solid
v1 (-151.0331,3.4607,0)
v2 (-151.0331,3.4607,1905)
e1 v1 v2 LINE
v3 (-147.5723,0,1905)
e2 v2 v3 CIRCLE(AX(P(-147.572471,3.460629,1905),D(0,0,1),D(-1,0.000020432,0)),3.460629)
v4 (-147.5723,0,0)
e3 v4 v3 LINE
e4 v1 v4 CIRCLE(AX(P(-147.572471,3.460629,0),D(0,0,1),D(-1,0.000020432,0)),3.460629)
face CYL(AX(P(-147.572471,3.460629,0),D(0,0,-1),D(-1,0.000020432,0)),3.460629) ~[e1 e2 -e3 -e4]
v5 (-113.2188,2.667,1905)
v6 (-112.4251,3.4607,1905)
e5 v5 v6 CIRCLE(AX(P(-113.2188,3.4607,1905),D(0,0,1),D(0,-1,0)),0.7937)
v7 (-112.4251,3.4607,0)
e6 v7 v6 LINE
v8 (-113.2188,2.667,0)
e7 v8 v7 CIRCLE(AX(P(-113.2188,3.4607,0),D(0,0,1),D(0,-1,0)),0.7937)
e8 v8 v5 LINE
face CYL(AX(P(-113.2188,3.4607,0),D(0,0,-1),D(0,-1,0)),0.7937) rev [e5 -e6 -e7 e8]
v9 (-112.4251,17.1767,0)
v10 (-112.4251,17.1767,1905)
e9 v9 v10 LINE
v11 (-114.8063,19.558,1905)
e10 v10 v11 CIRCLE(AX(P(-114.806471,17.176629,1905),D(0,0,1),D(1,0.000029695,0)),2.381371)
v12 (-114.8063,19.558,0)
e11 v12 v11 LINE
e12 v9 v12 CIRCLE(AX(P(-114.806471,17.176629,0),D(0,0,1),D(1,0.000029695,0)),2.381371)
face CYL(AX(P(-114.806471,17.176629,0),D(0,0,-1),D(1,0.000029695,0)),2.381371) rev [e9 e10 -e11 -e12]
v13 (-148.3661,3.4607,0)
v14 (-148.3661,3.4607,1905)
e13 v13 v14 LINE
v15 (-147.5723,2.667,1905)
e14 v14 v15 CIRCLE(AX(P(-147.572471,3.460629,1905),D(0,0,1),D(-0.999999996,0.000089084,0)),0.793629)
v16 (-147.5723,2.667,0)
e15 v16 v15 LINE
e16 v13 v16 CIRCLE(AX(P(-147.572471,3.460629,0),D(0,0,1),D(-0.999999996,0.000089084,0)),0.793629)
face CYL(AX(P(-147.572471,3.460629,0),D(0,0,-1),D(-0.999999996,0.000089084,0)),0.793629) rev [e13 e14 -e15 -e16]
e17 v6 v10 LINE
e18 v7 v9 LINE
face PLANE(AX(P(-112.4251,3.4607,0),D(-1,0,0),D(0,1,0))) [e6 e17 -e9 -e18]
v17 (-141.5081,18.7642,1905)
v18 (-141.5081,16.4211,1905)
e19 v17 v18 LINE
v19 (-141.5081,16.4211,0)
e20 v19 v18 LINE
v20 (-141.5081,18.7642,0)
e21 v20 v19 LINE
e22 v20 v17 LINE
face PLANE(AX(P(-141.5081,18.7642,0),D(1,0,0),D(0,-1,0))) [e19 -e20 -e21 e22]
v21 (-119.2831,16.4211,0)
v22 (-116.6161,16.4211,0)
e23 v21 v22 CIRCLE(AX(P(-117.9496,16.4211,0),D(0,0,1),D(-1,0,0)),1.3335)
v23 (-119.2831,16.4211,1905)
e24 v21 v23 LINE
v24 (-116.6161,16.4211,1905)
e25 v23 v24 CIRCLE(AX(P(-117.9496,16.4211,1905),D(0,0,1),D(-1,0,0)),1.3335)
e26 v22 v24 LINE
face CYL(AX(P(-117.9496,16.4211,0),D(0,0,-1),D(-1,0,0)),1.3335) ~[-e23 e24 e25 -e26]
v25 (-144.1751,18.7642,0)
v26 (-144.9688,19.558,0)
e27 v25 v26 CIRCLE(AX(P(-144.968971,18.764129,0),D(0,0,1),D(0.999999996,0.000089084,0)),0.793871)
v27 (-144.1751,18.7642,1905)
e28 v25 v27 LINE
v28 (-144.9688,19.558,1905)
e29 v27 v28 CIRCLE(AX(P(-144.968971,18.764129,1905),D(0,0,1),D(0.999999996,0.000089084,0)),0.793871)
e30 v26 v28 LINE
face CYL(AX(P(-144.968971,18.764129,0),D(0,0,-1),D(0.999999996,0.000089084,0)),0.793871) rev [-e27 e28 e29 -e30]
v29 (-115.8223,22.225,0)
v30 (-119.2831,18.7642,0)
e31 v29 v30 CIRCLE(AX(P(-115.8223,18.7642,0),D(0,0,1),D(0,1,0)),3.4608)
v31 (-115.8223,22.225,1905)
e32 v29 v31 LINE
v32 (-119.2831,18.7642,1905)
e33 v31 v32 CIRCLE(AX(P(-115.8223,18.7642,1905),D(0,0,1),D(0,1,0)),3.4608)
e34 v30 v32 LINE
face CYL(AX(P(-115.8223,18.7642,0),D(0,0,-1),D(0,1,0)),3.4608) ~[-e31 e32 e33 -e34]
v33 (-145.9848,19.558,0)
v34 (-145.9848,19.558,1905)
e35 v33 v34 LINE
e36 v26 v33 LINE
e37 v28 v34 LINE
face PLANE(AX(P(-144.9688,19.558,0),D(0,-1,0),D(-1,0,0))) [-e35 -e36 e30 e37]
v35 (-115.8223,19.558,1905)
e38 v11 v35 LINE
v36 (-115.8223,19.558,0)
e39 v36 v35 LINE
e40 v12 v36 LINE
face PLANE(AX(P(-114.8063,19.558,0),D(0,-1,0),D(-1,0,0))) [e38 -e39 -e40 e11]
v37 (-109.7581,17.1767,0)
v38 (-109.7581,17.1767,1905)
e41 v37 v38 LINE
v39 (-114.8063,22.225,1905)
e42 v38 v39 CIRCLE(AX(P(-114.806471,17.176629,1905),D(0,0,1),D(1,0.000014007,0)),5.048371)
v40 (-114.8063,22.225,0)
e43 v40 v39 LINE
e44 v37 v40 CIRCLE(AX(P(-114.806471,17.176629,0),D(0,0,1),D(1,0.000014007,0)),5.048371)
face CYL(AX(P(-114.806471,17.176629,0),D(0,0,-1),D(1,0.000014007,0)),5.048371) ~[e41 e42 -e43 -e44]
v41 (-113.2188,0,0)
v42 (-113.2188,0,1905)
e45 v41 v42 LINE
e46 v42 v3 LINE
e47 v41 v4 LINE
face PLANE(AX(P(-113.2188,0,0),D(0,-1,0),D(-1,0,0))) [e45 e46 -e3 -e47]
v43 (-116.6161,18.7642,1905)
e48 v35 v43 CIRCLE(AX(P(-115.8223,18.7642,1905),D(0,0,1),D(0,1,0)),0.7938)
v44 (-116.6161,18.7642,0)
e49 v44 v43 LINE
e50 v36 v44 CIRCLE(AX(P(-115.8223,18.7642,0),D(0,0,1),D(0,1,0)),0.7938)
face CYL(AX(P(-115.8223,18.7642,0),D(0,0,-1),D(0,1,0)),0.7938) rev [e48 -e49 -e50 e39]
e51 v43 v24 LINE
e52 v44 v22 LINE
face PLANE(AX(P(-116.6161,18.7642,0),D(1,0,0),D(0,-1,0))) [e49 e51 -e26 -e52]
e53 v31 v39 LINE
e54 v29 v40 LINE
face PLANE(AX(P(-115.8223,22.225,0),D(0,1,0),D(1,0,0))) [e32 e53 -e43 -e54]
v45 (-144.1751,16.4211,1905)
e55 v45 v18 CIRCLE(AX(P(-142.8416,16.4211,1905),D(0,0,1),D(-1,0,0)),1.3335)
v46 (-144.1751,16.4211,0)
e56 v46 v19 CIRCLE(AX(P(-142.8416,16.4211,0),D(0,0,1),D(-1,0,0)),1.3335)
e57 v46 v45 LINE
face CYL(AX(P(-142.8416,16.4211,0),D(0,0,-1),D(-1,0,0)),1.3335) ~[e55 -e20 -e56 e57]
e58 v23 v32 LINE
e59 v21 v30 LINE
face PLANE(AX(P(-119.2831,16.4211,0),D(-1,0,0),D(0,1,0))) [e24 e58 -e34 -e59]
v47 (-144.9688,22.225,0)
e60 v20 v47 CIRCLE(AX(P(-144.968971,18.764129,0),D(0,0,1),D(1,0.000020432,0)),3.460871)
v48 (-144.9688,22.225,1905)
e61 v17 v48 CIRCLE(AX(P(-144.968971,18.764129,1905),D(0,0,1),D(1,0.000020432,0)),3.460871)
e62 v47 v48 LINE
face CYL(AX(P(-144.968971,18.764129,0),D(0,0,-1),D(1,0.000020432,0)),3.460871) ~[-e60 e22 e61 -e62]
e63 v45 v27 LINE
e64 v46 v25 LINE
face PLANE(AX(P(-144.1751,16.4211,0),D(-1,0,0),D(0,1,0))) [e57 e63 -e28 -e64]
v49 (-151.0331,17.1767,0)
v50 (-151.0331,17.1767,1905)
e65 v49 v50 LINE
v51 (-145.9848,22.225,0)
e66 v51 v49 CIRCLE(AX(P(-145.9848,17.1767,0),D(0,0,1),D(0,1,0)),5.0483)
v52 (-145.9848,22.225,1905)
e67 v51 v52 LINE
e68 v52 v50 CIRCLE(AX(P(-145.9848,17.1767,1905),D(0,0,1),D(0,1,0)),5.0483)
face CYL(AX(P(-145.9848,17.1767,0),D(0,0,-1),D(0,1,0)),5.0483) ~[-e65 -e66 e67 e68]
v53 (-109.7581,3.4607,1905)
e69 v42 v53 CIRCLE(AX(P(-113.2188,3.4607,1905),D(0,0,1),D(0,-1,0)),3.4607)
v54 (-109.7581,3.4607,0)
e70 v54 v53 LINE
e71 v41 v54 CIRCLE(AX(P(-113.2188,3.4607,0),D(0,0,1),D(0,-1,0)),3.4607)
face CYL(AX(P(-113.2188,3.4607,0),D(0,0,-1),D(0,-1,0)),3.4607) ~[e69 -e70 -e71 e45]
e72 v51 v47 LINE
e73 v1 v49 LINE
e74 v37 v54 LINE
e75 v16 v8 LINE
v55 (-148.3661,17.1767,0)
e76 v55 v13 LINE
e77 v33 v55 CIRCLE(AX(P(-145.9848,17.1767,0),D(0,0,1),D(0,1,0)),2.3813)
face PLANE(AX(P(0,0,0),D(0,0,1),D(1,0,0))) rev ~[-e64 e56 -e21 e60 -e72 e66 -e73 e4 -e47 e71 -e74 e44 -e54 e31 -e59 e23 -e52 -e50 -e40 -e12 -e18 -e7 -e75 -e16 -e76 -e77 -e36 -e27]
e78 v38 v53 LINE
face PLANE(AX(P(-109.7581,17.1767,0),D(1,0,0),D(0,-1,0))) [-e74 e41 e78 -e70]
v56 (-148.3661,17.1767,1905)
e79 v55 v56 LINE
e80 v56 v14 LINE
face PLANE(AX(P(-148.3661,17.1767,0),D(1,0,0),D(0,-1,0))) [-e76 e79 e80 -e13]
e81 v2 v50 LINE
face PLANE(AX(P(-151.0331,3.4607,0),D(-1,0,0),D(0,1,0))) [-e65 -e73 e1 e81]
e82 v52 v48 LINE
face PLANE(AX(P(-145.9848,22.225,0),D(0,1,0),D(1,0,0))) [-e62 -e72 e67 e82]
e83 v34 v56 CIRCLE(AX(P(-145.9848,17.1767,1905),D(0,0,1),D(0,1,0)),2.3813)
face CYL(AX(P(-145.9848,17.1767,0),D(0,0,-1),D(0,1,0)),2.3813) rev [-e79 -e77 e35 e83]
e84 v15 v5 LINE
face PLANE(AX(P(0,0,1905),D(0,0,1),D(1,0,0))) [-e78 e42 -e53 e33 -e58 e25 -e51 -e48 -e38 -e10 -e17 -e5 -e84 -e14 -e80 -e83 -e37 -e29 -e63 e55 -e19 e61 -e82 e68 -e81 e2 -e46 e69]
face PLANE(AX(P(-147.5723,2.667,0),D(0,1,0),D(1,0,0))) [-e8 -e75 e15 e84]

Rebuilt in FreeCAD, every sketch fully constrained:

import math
import FreeCAD as App
import Part
import Sketcher
from FreeCAD import Vector
Q = App.Units.Quantity

doc = App.newDocument("Part")
body = doc.addObject("PartDesign::Body", "Body")

# Sketch on XY plane
sketch1 = body.newObject("Sketcher::SketchObject", "Sketch")
sketch1.AttachmentSupport = (doc.getObject("XY_Plane"), [""])
sketch1.MapMode = "FlatFace"
sketch1.addGeometry([
    Part.LineSegment(Vector(-147.6, 0, 0), Vector(-113.2, 0, 0)),  # 0
    Part.ArcOfCircle(Part.Circle(Vector(-113.2, 3.5, 0), Vector(0, 0, 1), 3.5), math.radians(-90), math.radians(0)),  # 1
    Part.LineSegment(Vector(-109.8, 3.5, 0), Vector(-109.8, 17.2, 0)),  # 2
    Part.ArcOfCircle(Part.Circle(Vector(-114.8, 17.2, 0), Vector(0, 0, 1), 5), math.radians(0), math.radians(90)),  # 3
    Part.LineSegment(Vector(-114.8, 22.2, 0), Vector(-115.8, 22.2, 0)),  # 4
    Part.ArcOfCircle(Part.Circle(Vector(-115.8, 18.8, 0), Vector(0, 0, 1), 3.5), math.radians(90), math.radians(180)),  # 5
    Part.LineSegment(Vector(-119.3, 18.8, 0), Vector(-119.3, 16.4, 0)),  # 6
    Part.ArcOfCircle(Part.Circle(Vector(-117.9, 16.4, 0), Vector(0, 0, 1), 1.3), math.radians(180), math.radians(360)),  # 7
    Part.LineSegment(Vector(-116.6, 16.4, 0), Vector(-116.6, 18.8, 0)),  # 8
    Part.ArcOfCircle(Part.Circle(Vector(-115.8, 18.8, 0), Vector(0, 0, 1), 0.8), math.radians(90), math.radians(180)),  # 9
    Part.LineSegment(Vector(-115.8, 19.6, 0), Vector(-114.8, 19.6, 0)),  # 10
    Part.ArcOfCircle(Part.Circle(Vector(-114.8, 17.2, 0), Vector(0, 0, 1), 2.4), math.radians(0), math.radians(90)),  # 11
    Part.LineSegment(Vector(-112.4, 17.2, 0), Vector(-112.4, 3.5, 0)),  # 12
    Part.ArcOfCircle(Part.Circle(Vector(-113.2, 3.5, 0), Vector(0, 0, 1), 0.8), math.radians(-90), math.radians(0)),  # 13
    Part.LineSegment(Vector(-113.2, 2.7, 0), Vector(-147.6, 2.7, 0)),  # 14
    Part.ArcOfCircle(Part.Circle(Vector(-147.6, 3.5, 0), Vector(0, 0, 1), 0.8), math.radians(180), math.radians(270)),  # 15
    Part.LineSegment(Vector(-148.4, 3.5, 0), Vector(-148.4, 17.2, 0)),  # 16
    Part.ArcOfCircle(Part.Circle(Vector(-146, 17.2, 0), Vector(0, 0, 1), 2.4), math.radians(90), math.radians(180)),  # 17
    Part.LineSegment(Vector(-146, 19.6, 0), Vector(-145, 19.6, 0)),  # 18
    Part.ArcOfCircle(Part.Circle(Vector(-145, 18.8, 0), Vector(0, 0, 1), 0.8), math.radians(0), math.radians(90)),  # 19
    Part.LineSegment(Vector(-144.2, 18.8, 0), Vector(-144.2, 16.4, 0)),  # 20
    Part.ArcOfCircle(Part.Circle(Vector(-142.8, 16.4, 0), Vector(0, 0, 1), 1.3), math.radians(180), math.radians(360)),  # 21
    Part.LineSegment(Vector(-141.5, 16.4, 0), Vector(-141.5, 18.8, 0)),  # 22
    Part.ArcOfCircle(Part.Circle(Vector(-145, 18.8, 0), Vector(0, 0, 1), 3.5), math.radians(0), math.radians(90)),  # 23
    Part.LineSegment(Vector(-145, 22.2, 0), Vector(-146, 22.2, 0)),  # 24
    Part.ArcOfCircle(Part.Circle(Vector(-146, 17.2, 0), Vector(0, 0, 1), 5), math.radians(90), math.radians(180)),  # 25
    Part.LineSegment(Vector(-151, 17.2, 0), Vector(-151, 3.5, 0)),  # 26
    Part.ArcOfCircle(Part.Circle(Vector(-147.6, 3.5, 0), Vector(0, 0, 1), 3.5), math.radians(180), math.radians(270)),  # 27
], False)
sketch1.addConstraint([
    Sketcher.Constraint("Tangent", 0, 2, 1, 1),
    Sketcher.Constraint("Tangent", 1, 2, 2, 1),
    Sketcher.Constraint("Tangent", 2, 2, 3, 1),
    Sketcher.Constraint("Tangent", 3, 2, 4, 1),
    Sketcher.Constraint("Tangent", 4, 2, 5, 1),
    Sketcher.Constraint("Tangent", 5, 2, 6, 1),
    Sketcher.Constraint("Tangent", 6, 2, 7, 1),
    Sketcher.Constraint("Tangent", 7, 2, 8, 1),
    Sketcher.Constraint("Tangent", 8, 2, 9, 2),
    Sketcher.Constraint("Tangent", 9, 1, 10, 1),
    Sketcher.Constraint("Tangent", 10, 2, 11, 2),
    Sketcher.Constraint("Tangent", 11, 1, 12, 1),
    Sketcher.Constraint("Tangent", 12, 2, 13, 2),
    Sketcher.Constraint("Tangent", 13, 1, 14, 1),
    Sketcher.Constraint("Tangent", 14, 2, 15, 2),
    Sketcher.Constraint("Tangent", 15, 1, 16, 1),
    Sketcher.Constraint("Tangent", 16, 2, 17, 2),
    Sketcher.Constraint("Tangent", 17, 1, 18, 1),
    Sketcher.Constraint("Tangent", 18, 2, 19, 2),
    Sketcher.Constraint("Tangent", 19, 1, 20, 1),
    Sketcher.Constraint("Tangent", 20, 2, 21, 1),
    Sketcher.Constraint("Tangent", 21, 2, 22, 1),
    Sketcher.Constraint("Tangent", 22, 2, 23, 1),
    Sketcher.Constraint("Tangent", 23, 2, 24, 1),
    Sketcher.Constraint("Tangent", 24, 2, 25, 1),
    Sketcher.Constraint("Tangent", 25, 2, 26, 1),
    Sketcher.Constraint("Tangent", 26, 2, 27, 1),
    Sketcher.Constraint("Tangent", 27, 2, 0, 1),
    Sketcher.Constraint("Horizontal", 0),
    Sketcher.Constraint("Vertical", 2),
    Sketcher.Constraint("Horizontal", 4),
    Sketcher.Constraint("Vertical", 6),
    Sketcher.Constraint("Vertical", 8),
    Sketcher.Constraint("Horizontal", 10),
    Sketcher.Constraint("Vertical", 12),
    Sketcher.Constraint("Horizontal", 14),
    Sketcher.Constraint("Vertical", 16),
    Sketcher.Constraint("Horizontal", 18),
    Sketcher.Constraint("Vertical", 20),
    Sketcher.Constraint("Vertical", 22),
    Sketcher.Constraint("Horizontal", 24),
    Sketcher.Constraint("Vertical", 26),
    Sketcher.Constraint("Coincident", 9, 3, 5, 3),
    Sketcher.Constraint("Coincident", 11, 3, 3, 3),
    Sketcher.Constraint("Coincident", 13, 3, 1, 3),
    Sketcher.Constraint("Coincident", 23, 3, 19, 3),
    Sketcher.Constraint("Coincident", 25, 3, 17, 3),
    Sketcher.Constraint("Coincident", 27, 3, 15, 3),
    Sketcher.Constraint("Equal", 1, 5),
    Sketcher.Constraint("Equal", 13, 15),
    Sketcher.Constraint("Equal", 11, 17),
    Sketcher.Constraint("Equal", 15, 19),
    Sketcher.Constraint("PointOnObject", 0, 2, -1),
    Sketcher.Constraint("Horizontal", 11, 3, 17, 3),
    Sketcher.Constraint("Horizontal", 7, 3, 21, 3),
    Sketcher.Constraint("Equal", 10, 18),
    Sketcher.Constraint("Radius", 9, Q("0.031252 in")),
    Sketcher.Constraint("Radius", 11, Q("0.093748 in")),
    Sketcher.Constraint("DistanceX", 4, 2, 4, 1, Q("0.04 in")),
    Sketcher.Constraint("DistanceY", 2, 1, 2, 2, Q("0.54 in")),
    Sketcher.Constraint("Radius", 7, Q("0.0525 in")),
    Sketcher.Constraint("DistanceX", 15, 3, 5, 3, Q("1.25 in")),
    Sketcher.Constraint("DistanceY", 6, 2, 6, 1, 2.343),
    Sketcher.Constraint("DistanceX", 1, 3, -1, 1, 113.2188),
])
pad1 = body.newObject("PartDesign::Pad", "Pad")
pad1.Profile = sketch1
pad1.Length = Q("75 in")

doc.recompute()
